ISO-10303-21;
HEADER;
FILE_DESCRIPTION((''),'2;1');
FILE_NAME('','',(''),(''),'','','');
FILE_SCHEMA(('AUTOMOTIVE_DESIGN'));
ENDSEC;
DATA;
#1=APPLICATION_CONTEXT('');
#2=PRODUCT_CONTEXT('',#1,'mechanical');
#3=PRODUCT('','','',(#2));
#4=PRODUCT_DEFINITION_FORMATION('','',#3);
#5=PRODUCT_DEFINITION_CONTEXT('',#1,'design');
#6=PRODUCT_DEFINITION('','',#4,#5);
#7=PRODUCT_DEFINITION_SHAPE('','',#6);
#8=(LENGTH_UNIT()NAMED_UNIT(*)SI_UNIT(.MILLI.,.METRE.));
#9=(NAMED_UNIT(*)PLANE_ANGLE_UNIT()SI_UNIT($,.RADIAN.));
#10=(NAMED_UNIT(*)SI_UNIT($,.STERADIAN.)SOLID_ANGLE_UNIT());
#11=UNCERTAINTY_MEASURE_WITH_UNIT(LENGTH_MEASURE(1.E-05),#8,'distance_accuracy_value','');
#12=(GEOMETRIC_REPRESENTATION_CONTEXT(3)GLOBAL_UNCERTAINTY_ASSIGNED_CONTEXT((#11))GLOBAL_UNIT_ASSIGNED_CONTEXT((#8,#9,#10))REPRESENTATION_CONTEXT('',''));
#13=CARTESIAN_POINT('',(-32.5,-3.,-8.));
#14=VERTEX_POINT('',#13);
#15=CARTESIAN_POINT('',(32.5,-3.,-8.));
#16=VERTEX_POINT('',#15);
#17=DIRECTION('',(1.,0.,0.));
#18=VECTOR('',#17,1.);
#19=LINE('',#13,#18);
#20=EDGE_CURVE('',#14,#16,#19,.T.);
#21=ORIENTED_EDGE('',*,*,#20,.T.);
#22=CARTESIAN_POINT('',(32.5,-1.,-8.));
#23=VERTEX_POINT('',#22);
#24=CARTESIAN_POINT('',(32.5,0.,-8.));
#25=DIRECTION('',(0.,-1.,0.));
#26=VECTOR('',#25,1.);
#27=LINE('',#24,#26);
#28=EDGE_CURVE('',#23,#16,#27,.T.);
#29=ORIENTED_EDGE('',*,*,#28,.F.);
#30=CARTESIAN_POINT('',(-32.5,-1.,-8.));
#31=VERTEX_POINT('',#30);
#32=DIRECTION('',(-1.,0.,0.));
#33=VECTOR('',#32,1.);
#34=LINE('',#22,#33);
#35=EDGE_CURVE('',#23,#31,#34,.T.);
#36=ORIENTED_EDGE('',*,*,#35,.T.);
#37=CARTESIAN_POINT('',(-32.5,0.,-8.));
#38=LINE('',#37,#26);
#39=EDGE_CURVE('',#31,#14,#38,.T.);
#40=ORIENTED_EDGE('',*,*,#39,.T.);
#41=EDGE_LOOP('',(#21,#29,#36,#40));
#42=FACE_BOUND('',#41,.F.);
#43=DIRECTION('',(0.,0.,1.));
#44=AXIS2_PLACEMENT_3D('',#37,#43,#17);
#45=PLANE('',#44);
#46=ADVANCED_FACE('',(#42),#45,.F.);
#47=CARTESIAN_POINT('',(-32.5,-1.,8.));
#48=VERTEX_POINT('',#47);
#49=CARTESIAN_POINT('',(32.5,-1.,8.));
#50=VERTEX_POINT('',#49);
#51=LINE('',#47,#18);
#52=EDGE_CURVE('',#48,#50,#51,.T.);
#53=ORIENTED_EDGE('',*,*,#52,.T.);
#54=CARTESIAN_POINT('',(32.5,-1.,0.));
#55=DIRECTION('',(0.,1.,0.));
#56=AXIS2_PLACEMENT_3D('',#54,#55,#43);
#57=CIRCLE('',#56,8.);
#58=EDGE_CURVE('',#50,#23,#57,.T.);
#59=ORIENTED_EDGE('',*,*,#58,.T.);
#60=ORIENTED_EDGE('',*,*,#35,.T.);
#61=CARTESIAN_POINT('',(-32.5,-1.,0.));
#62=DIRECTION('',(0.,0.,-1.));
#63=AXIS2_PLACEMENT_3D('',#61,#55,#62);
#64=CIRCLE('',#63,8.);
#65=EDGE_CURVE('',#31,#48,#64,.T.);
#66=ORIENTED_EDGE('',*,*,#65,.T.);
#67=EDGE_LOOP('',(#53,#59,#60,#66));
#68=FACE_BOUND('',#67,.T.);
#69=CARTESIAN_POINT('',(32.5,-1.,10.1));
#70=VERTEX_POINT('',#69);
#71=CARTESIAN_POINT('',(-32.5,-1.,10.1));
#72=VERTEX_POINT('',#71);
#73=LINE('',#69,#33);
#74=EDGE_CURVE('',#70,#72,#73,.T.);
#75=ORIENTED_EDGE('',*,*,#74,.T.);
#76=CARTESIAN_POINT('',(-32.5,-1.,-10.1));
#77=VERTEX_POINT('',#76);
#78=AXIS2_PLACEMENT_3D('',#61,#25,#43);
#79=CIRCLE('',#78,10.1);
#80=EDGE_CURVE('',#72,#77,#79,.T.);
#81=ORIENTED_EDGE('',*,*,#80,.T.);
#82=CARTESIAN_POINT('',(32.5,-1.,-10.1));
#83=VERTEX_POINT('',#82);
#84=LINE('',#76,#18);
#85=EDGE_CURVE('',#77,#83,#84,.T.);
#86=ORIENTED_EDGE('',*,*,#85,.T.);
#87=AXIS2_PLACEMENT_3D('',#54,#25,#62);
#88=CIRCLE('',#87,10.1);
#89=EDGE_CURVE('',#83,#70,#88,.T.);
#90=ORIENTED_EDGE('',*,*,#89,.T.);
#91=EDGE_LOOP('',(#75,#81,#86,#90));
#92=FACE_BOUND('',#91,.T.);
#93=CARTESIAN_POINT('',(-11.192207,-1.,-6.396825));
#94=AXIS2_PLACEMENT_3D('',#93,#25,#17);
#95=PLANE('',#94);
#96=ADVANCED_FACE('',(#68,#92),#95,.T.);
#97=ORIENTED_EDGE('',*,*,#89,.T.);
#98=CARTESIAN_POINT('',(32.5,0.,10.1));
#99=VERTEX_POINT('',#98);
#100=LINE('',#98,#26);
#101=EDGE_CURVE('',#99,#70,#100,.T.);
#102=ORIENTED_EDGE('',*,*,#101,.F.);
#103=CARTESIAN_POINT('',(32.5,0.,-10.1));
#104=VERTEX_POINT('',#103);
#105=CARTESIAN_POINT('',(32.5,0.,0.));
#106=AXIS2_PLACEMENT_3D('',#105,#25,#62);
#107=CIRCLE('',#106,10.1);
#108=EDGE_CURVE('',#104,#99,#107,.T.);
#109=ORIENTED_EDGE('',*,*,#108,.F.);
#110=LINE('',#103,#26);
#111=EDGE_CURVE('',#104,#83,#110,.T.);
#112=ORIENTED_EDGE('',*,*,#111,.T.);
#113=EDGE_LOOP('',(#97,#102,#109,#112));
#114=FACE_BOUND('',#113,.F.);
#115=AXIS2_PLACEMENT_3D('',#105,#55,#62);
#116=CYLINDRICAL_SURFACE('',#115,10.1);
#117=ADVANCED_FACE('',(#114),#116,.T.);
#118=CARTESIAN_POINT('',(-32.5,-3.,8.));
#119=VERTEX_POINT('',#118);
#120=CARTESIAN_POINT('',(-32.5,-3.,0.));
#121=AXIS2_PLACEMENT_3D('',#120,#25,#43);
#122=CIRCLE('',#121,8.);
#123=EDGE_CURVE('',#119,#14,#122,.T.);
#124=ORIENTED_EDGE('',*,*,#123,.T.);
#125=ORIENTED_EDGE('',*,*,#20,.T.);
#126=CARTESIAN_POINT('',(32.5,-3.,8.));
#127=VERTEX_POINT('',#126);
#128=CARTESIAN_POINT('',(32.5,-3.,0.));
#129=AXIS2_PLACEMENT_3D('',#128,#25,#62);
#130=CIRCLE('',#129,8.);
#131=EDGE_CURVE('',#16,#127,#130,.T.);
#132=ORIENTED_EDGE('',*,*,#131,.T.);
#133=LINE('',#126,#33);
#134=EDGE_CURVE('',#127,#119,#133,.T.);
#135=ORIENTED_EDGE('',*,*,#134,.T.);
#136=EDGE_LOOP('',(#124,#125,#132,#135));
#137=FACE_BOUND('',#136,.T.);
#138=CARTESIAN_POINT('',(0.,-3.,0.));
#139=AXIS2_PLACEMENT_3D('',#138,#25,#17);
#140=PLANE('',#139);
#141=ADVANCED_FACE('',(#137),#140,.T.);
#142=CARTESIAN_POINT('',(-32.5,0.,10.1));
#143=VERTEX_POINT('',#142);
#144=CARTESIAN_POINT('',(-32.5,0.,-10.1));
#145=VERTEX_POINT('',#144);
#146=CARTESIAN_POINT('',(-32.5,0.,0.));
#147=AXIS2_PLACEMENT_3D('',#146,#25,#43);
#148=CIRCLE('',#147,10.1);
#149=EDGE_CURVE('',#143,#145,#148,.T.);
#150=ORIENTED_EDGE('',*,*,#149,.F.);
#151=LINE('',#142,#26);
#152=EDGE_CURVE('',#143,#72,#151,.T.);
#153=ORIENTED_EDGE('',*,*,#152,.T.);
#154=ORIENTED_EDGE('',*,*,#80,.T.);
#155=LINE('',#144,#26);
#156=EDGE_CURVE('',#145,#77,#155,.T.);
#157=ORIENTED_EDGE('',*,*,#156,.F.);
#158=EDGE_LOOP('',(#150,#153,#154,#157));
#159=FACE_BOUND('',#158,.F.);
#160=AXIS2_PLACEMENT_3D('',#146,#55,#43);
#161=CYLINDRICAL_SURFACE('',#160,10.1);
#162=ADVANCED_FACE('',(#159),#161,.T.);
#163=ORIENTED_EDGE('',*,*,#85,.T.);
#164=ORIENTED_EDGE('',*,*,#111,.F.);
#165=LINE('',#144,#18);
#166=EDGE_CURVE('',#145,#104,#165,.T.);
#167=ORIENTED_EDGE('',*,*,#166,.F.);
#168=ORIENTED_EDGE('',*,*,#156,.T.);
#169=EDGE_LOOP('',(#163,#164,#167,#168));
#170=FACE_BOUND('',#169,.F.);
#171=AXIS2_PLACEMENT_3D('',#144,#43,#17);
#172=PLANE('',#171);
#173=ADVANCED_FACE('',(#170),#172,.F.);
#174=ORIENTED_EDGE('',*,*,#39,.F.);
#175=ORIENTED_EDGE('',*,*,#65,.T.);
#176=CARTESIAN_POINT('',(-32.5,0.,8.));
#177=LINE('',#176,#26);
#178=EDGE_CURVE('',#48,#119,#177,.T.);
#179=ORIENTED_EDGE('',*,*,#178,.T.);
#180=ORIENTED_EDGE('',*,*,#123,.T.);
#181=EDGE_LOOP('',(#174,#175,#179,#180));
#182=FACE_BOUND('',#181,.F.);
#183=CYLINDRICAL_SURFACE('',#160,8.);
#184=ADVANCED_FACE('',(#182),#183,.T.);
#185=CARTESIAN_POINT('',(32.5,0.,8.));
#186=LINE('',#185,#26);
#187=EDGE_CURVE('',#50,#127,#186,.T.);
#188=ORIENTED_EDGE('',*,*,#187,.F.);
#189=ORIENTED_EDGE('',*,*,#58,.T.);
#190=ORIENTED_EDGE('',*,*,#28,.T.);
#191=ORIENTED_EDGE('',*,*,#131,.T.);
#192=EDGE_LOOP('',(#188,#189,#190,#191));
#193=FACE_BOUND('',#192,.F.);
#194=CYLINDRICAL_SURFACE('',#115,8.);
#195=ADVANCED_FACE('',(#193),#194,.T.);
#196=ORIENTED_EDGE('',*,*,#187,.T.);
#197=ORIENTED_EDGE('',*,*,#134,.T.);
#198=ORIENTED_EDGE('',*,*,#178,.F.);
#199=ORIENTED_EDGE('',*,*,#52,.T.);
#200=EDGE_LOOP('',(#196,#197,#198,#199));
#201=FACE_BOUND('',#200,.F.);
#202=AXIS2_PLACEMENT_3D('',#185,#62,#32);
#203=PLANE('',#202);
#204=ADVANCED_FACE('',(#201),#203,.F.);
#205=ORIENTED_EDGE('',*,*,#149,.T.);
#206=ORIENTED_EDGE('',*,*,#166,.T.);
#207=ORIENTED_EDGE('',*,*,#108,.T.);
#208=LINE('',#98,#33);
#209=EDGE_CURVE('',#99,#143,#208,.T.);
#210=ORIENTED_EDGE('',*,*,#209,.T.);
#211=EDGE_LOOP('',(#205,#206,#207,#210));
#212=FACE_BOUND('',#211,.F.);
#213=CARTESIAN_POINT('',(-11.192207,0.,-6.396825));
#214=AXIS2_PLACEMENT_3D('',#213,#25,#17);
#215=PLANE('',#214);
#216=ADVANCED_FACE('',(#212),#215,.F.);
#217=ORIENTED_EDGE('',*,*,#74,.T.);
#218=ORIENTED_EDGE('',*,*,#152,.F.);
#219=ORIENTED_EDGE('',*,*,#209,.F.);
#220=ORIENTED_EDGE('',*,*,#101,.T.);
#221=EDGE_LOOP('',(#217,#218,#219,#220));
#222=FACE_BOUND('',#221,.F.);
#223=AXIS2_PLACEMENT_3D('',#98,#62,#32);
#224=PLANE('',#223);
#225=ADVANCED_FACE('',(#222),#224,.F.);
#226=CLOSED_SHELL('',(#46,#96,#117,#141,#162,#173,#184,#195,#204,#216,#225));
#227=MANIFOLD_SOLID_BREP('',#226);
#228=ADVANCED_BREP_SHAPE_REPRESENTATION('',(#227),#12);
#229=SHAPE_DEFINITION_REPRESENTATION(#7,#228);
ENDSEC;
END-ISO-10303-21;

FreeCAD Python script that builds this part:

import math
import FreeCAD as App
import Part
import Sketcher

V = App.Vector

doc = App.newDocument("Part")
body = doc.addObject("PartDesign::Body", "Body")

sketch1 = doc.addObject("Sketcher::SketchObject", "Sketch")
body.addObject(sketch1)
sketch1.AttachmentSupport = (doc.XZ_Plane, [""])
sketch1.MapMode = "FlatFace"
sketch1.addGeometry([
    Part.ArcOfCircle(Part.Circle(V(-32.5, 0, 0), V(0, 0, 1), 10.1), math.radians(90), math.radians(270)),
    Part.LineSegment(V(-32.5, -10.1, 0), V(32.5, -10.1, 0)),
    Part.ArcOfCircle(Part.Circle(V(32.5, 0, 0), V(0, 0, 1), 10.1), math.radians(-90), math.radians(90)),
    Part.LineSegment(V(32.5, 10.1, 0), V(-32.5, 10.1, 0)),
    Part.LineSegment(V(-32.5, 8, 0), V(32.5, 8, 0)),
    Part.ArcOfCircle(Part.Circle(V(32.5, 0, 0), V(0, 0, 1), 8), math.radians(-90), math.radians(90)),
    Part.LineSegment(V(32.5, -8, 0), V(-32.5, -8, 0)),
    Part.ArcOfCircle(Part.Circle(V(-32.5, 0, 0), V(0, 0, 1), 8), math.radians(90), math.radians(270)),
], False)
sketch1.addConstraint([
    Sketcher.Constraint("Tangent", 0, 2, 1, 1),
    Sketcher.Constraint("Tangent", 1, 2, 2, 1),
    Sketcher.Constraint("Tangent", 2, 2, 3, 1),
    Sketcher.Constraint("Tangent", 3, 2, 0, 1),
    Sketcher.Constraint("Tangent", 4, 2, 5, 2),
    Sketcher.Constraint("Tangent", 5, 1, 6, 1),
    Sketcher.Constraint("Tangent", 6, 2, 7, 2),
    Sketcher.Constraint("Tangent", 7, 1, 4, 1),
    Sketcher.Constraint("Horizontal", 1),
    Sketcher.Constraint("Horizontal", 3),
    Sketcher.Constraint("Horizontal", 4),
    Sketcher.Constraint("Horizontal", 6),
    Sketcher.Constraint("Coincident", 5, 3, 2, 3),
    Sketcher.Constraint("Symmetric", 0, 3, 2, 3, -1, 1),
    Sketcher.Constraint("Vertical", 7, 3, 0, 2),
    Sketcher.Constraint("Radius", 5, 8.0),
    Sketcher.Constraint("Radius", 0, 10.1),
    Sketcher.Constraint("DistanceX", 1, 1, 1, 2, 65.0),
])
pad1 = doc.addObject("PartDesign::Pad", "Pad")
body.addObject(pad1)
pad1.Profile = sketch1
pad1.Length = 1

sketch2 = doc.addObject("Sketcher::SketchObject", "Sketch001")
body.addObject(sketch2)
sketch2.AttachmentSupport = (doc.XZ_Plane, [""])
sketch2.MapMode = "FlatFace"
sketch2.addGeometry([
    Part.LineSegment(V(32.5, 8, 0), V(-32.5, 8, 0)),
    Part.ArcOfCircle(Part.Circle(V(-32.5, 0, 0), V(0, 0, 1), 8), math.radians(90), math.radians(270)),
    Part.LineSegment(V(-32.5, -8, 0), V(32.5, -8, 0)),
    Part.ArcOfCircle(Part.Circle(V(32.5, 0, 0), V(0, 0, 1), 8), math.radians(-90), math.radians(90)),
], False)
sketch2.addConstraint([
    Sketcher.Constraint("Tangent", 0, 2, 1, 1),
    Sketcher.Constraint("Tangent", 1, 2, 2, 1),
    Sketcher.Constraint("Tangent", 2, 2, 3, 1),
    Sketcher.Constraint("Tangent", 3, 2, 0, 1),
    Sketcher.Constraint("Horizontal", 0),
    Sketcher.Constraint("Horizontal", 2),
    Sketcher.Constraint("Symmetric", 1, 3, 3, 3, -1, 1),
    Sketcher.Constraint("Radius", 1, 8.0),
    Sketcher.Constraint("DistanceX", 0, 2, 0, 1, 65.0),
])
pad2 = doc.addObject("PartDesign::Pad", "Pad001")
body.addObject(pad2)
pad2.Profile = sketch2
pad2.Length = 3

doc.recompute()
